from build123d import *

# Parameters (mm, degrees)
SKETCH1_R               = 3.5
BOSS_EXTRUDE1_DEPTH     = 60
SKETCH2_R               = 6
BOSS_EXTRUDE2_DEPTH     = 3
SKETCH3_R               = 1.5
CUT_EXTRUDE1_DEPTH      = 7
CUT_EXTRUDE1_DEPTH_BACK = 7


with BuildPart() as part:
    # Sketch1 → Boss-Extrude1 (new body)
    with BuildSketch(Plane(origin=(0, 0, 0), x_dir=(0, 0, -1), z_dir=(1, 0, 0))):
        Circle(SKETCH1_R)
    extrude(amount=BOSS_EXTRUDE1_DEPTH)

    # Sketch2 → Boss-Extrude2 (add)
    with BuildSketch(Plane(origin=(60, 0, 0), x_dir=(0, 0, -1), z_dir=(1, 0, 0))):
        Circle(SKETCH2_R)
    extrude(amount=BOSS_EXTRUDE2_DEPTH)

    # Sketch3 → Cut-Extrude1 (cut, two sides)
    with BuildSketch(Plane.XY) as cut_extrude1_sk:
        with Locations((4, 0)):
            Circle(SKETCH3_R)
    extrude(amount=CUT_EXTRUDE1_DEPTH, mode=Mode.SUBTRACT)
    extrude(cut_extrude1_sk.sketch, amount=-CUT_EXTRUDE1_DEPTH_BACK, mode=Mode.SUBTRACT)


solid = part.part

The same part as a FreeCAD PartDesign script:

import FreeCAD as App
import Part
import Sketcher

doc = App.newDocument("Part")
body = doc.addObject("PartDesign::Body", "Body")

# Sketch on YZ plane
sketch1 = body.newObject("Sketcher::SketchObject", "Sketch")
sketch1.AttachmentSupport = (doc.getObject("YZ_Plane"), [""])
sketch1.MapMode = "FlatFace"
sketch1.addGeometry(Part.Circle(App.Vector(0, 0, 0), App.Vector(0, 0, 1), 3.5), False)
sketch1.addConstraint([
    Sketcher.Constraint("Coincident", 0, 3, -1, 1),
    Sketcher.Constraint("Diameter", 0, 7.0),
])
pad1 = body.newObject("PartDesign::Pad", "Pad")
pad1.Profile = sketch1
pad1.Length = 60

# Sketch on YZ plane
sketch2 = body.newObject("Sketcher::SketchObject", "Sketch001")
sketch2.AttachmentSupport = (doc.getObject("YZ_Plane"), [""])
sketch2.MapMode = "FlatFace"
sketch2.AttachmentOffset = App.Placement(App.Vector(0, 0, 60), App.Rotation())
sketch2.addGeometry(Part.Circle(App.Vector(0, 0, 0), App.Vector(0, 0, 1), 6), False)
sketch2.addConstraint([
    Sketcher.Constraint("Coincident", 0, 3, -1, 1),
    Sketcher.Constraint("Diameter", 0, 12.0),
])
pad2 = body.newObject("PartDesign::Pad", "Pad001")
pad2.Profile = sketch2
pad2.Length = 3

# Sketch on XY plane
sketch3 = body.newObject("Sketcher::SketchObject", "Sketch002")
sketch3.AttachmentSupport = (doc.getObject("XY_Plane"), [""])
sketch3.MapMode = "FlatFace"
sketch3.addGeometry(Part.Circle(App.Vector(4, 0, 0), App.Vector(0, 0, 1), 1.5), False)
sketch3.addConstraint([
    Sketcher.Constraint("PointOnObject", 0, 3, -1),
    Sketcher.Constraint("Diameter", 0, 3.0),
    Sketcher.Constraint("DistanceX", -1, 1, 0, 3, 4.0),
])
pocket1 = body.newObject("PartDesign::Pocket", "Pocket")
pocket1.Profile = sketch3
pocket1.Type = "ThroughAll"
pocket1.Midplane = True

doc.recompute()
